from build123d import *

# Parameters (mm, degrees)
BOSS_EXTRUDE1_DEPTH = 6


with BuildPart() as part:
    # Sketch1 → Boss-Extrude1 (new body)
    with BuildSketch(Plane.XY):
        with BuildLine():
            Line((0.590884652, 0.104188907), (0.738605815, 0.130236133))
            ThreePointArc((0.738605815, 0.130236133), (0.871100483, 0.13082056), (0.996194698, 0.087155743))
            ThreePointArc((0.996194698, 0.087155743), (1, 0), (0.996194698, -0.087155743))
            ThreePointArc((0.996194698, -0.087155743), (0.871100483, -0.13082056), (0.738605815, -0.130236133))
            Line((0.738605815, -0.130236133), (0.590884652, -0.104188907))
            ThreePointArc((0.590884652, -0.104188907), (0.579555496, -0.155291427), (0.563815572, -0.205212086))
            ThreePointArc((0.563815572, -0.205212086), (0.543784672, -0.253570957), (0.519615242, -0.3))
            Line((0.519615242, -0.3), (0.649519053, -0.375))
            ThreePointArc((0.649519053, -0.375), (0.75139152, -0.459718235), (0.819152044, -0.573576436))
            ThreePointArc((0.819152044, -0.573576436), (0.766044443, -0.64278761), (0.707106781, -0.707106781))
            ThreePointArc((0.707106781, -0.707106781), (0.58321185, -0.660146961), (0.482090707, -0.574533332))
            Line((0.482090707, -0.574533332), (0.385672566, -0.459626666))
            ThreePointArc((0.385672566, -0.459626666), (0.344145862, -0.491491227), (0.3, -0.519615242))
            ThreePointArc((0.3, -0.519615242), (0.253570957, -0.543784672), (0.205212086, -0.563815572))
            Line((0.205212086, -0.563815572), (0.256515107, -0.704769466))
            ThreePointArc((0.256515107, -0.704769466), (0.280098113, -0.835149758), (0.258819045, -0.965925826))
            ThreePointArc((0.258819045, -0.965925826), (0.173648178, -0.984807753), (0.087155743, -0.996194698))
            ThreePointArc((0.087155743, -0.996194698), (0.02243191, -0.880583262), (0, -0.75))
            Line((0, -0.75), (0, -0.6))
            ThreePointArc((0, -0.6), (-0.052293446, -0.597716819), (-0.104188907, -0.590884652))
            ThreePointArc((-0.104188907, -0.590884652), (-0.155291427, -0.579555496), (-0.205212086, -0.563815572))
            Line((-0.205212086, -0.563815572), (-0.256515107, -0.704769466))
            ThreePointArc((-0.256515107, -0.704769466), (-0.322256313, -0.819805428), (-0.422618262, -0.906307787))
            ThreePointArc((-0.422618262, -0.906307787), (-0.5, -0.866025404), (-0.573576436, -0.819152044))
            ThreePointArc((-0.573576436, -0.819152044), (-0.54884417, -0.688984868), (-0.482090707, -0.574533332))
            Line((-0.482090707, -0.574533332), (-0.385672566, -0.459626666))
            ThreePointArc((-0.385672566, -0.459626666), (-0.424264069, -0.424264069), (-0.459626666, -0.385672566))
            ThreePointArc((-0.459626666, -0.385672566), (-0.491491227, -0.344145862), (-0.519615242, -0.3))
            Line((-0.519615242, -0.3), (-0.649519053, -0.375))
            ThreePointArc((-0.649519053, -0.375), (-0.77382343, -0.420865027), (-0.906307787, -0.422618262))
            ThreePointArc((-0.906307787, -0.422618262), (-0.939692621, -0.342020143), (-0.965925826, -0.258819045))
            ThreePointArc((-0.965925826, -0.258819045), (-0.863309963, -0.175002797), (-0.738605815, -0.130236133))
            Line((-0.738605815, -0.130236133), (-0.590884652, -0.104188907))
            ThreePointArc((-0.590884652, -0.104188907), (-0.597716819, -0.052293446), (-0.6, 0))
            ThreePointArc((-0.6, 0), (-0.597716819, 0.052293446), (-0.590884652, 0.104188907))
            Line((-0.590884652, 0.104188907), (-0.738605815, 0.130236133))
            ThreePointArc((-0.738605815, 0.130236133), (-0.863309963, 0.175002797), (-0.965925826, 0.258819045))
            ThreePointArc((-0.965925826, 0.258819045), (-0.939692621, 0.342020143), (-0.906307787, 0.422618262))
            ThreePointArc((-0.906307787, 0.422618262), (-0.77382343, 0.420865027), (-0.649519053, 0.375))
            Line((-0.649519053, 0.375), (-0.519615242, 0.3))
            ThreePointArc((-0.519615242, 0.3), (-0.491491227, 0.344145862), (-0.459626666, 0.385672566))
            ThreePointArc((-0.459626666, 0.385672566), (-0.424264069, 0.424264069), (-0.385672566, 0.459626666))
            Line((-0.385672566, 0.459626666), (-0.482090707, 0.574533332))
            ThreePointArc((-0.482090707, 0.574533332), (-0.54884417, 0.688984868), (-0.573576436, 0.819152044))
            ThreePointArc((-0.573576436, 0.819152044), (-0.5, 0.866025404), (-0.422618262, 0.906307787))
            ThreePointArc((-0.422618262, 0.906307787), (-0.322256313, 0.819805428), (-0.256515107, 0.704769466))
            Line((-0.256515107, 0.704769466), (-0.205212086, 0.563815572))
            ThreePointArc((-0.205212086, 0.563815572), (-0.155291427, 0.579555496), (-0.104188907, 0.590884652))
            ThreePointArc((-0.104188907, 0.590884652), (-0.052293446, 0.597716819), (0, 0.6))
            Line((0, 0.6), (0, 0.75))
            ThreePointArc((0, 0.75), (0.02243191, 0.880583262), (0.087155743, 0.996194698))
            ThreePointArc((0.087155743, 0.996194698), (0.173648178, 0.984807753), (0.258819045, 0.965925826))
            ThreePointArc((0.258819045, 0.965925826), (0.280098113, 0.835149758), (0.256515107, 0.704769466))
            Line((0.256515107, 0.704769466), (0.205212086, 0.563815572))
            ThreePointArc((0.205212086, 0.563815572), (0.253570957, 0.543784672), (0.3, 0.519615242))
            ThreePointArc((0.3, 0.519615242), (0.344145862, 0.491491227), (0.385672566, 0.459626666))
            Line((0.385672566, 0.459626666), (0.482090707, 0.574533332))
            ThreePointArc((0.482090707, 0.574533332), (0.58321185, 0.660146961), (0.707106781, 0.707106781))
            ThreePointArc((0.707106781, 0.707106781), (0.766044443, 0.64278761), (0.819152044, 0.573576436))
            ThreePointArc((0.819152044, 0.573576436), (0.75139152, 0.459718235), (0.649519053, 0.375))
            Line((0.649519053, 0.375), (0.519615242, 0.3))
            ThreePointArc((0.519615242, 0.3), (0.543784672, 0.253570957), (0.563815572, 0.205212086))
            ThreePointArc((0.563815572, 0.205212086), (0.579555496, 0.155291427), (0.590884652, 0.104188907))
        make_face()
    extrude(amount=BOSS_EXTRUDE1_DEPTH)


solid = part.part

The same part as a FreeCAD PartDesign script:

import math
import FreeCAD as App
import Part
import Sketcher
from FreeCAD import Vector
Q = App.Units.Quantity

doc = App.newDocument("Part")
body = doc.addObject("PartDesign::Body", "Body")

# Sketch on XY plane
sketch1 = body.newObject("Sketcher::SketchObject", "Sketch")
sketch1.AttachmentSupport = (doc.getObject("XY_Plane"), [""])
sketch1.MapMode = "FlatFace"
sketch1.addGeometry(Part.LineSegment(Vector(0.74, 0.13, 0), Vector(0.59, 0.1, 0)), False)
sketch1.addGeometry(Part.ArcOfCircle(Part.Circle(Vector(0, 0, 0), Vector(0, 0, 1), 0.6), math.radians(10), math.radians(20)), False)
sketch1.addGeometry(Part.ArcOfCircle(Part.Circle(Vector(0, 0, 0), Vector(0, 0, 1), 0.6), math.radians(20), math.radians(30)), False)
sketch1.addGeometry(Part.LineSegment(Vector(0.52, 0.3, 0), Vector(0.65, 0.38, 0)), False)
sketch1.addGeometry(Part.ArcOfCircle(Part.Circle(Vector(0.45, 0.71, 0), Vector(0, 0, 1), 0.39), math.radians(-60), math.radians(-21)), False)
sketch1.addGeometry(Part.ArcOfCircle(Part.Circle(Vector(0, 0, 0), Vector(0, 0, 1), 1), math.radians(35), math.radians(45)), False)
sketch1.addGeometry(Part.ArcOfCircle(Part.Circle(Vector(0.78, 0.32, 0), Vector(0, 0, 1), 0.39), math.radians(101), math.radians(140)), False)
sketch1.addGeometry(Part.LineSegment(Vector(0.48, 0.57, 0), Vector(0.39, 0.46, 0)), False)
sketch1.addGeometry(Part.ArcOfCircle(Part.Circle(Vector(0, 0, 0), Vector(0, 0, 1), 0.6), math.radians(50), math.radians(60)), False)
sketch1.addGeometry(Part.ArcOfCircle(Part.Circle(Vector(0, 0, 0), Vector(0, 0, 1), 0.6), math.radians(60), math.radians(70)), False)
sketch1.addGeometry(Part.LineSegment(Vector(0.21, 0.56, 0), Vector(0.26, 0.7, 0)), False)
sketch1.addGeometry(Part.ArcOfCircle(Part.Circle(Vector(-0.11, 0.84, 0), Vector(0, 0, 1), 0.39), math.radians(-20), math.radians(19)), False)
sketch1.addGeometry(Part.ArcOfCircle(Part.Circle(Vector(0, 0, 0), Vector(0, 0, 1), 1), math.radians(75), math.radians(85)), False)
sketch1.addGeometry(Part.ArcOfCircle(Part.Circle(Vector(0.39, 0.75, 0), Vector(0, 0, 1), 0.39), math.radians(141), math.radians(180)), False)
sketch1.addGeometry(Part.LineSegment(Vector(0, 0.75, 0), Vector(0, 0.6, 0)), False)
sketch1.addGeometry(Part.ArcOfCircle(Part.Circle(Vector(0, 0, 0), Vector(0, 0, 1), 0.6), math.radians(90), math.radians(100)), False)
sketch1.addGeometry(Part.ArcOfCircle(Part.Circle(Vector(0, 0, 0), Vector(0, 0, 1), 0.6), math.radians(100), math.radians(110)), False)
sketch1.addGeometry(Part.LineSegment(Vector(-0.21, 0.56, 0), Vector(-0.26, 0.7, 0)), False)
sketch1.addGeometry(Part.ArcOfCircle(Part.Circle(Vector(-0.62, 0.57, 0), Vector(0, 0, 1), 0.39), math.radians(20), math.radians(59)), False)
sketch1.addGeometry(Part.ArcOfCircle(Part.Circle(Vector(0, 0, 0), Vector(0, 0, 1), 1), math.radians(115), math.radians(125)), False)
sketch1.addGeometry(Part.ArcOfCircle(Part.Circle(Vector(-0.18, 0.83, 0), Vector(0, 0, 1), 0.39), math.radians(-179), math.radians(-140)), False)
sketch1.addGeometry(Part.LineSegment(Vector(-0.48, 0.57, 0), Vector(-0.39, 0.46, 0)), False)
sketch1.addGeometry(Part.ArcOfCircle(Part.Circle(Vector(0, 0, 0), Vector(0, 0, 1), 0.6), math.radians(130), math.radians(140)), False)
sketch1.addGeometry(Part.ArcOfCircle(Part.Circle(Vector(0, 0, 0), Vector(0, 0, 1), 0.6), math.radians(140), math.radians(150)), False)
sketch1.addGeometry(Part.LineSegment(Vector(-0.52, 0.3, 0), Vector(-0.65, 0.38, 0)), False)
sketch1.addGeometry(Part.ArcOfCircle(Part.Circle(Vector(-0.85, 0.04, 0), Vector(0, 0, 1), 0.39), math.radians(60), math.radians(99)), False)
sketch1.addGeometry(Part.ArcOfCircle(Part.Circle(Vector(0, 0, 0), Vector(0, 0, 1), 1), math.radians(155), math.radians(165)), False)
sketch1.addGeometry(Part.ArcOfCircle(Part.Circle(Vector(-0.67, 0.52, 0), Vector(0, 0, 1), 0.39), math.radians(-139), math.radians(-100)), False)
sketch1.addGeometry(Part.LineSegment(Vector(-0.74, 0.13, 0), Vector(-0.59, 0.1, 0)), False)
sketch1.addGeometry(Part.ArcOfCircle(Part.Circle(Vector(0, 0, 0), Vector(0, 0, 1), 0.6), math.radians(170), math.radians(180)), False)
sketch1.addGeometry(Part.ArcOfCircle(Part.Circle(Vector(0, 0, 0), Vector(0, 0, 1), 0.6), math.radians(180), math.radians(190)), False)
sketch1.addGeometry(Part.LineSegment(Vector(-0.59, -0.1, 0), Vector(-0.74, -0.13, 0)), False)
sketch1.addGeometry(Part.ArcOfCircle(Part.Circle(Vector(-0.67, -0.52, 0), Vector(0, 0, 1), 0.39), math.radians(100), math.radians(139)), False)
sketch1.addGeometry(Part.ArcOfCircle(Part.Circle(Vector(0, 0, 0), Vector(0, 0, 1), 1), math.radians(-165), math.radians(-155)), False)
sketch1.addGeometry(Part.ArcOfCircle(Part.Circle(Vector(-0.85, -0.04, 0), Vector(0, 0, 1), 0.39), math.radians(-99), math.radians(-60)), False)
sketch1.addGeometry(Part.LineSegment(Vector(-0.65, -0.38, 0), Vector(-0.52, -0.3, 0)), False)
sketch1.addGeometry(Part.ArcOfCircle(Part.Circle(Vector(0, 0, 0), Vector(0, 0, 1), 0.6), math.radians(-150), math.radians(-140)), False)
sketch1.addGeometry(Part.ArcOfCircle(Part.Circle(Vector(0, 0, 0), Vector(0, 0, 1), 0.6), math.radians(-140), math.radians(-130)), False)
sketch1.addGeometry(Part.LineSegment(Vector(-0.39, -0.46, 0), Vector(-0.48, -0.57, 0)), False)
sketch1.addGeometry(Part.ArcOfCircle(Part.Circle(Vector(-0.18, -0.83, 0), Vector(0, 0, 1), 0.39), math.radians(140), math.radians(179)), False)
sketch1.addGeometry(Part.ArcOfCircle(Part.Circle(Vector(0, 0, 0), Vector(0, 0, 1), 1), math.radians(-125), math.radians(-115)), False)
sketch1.addGeometry(Part.ArcOfCircle(Part.Circle(Vector(-0.62, -0.57, 0), Vector(0, 0, 1), 0.39), math.radians(-59), math.radians(-20)), False)
sketch1.addGeometry(Part.LineSegment(Vector(-0.26, -0.7, 0), Vector(-0.21, -0.56, 0)), False)
sketch1.addGeometry(Part.ArcOfCircle(Part.Circle(Vector(0, 0, 0), Vector(0, 0, 1), 0.6), math.radians(-110), math.radians(-100)), False)
sketch1.addGeometry(Part.ArcOfCircle(Part.Circle(Vector(0, 0, 0), Vector(0, 0, 1), 0.6), math.radians(-100), math.radians(-90)), False)
sketch1.addGeometry(Part.LineSegment(Vector(0, -0.6, 0), Vector(0, -0.75, 0)), False)
sketch1.addGeometry(Part.ArcOfCircle(Part.Circle(Vector(0.39, -0.75, 0), Vector(0, 0, 1), 0.39), math.radians(180), math.radians(219)), False)
sketch1.addGeometry(Part.ArcOfCircle(Part.Circle(Vector(0, 0, 0), Vector(0, 0, 1), 1), math.radians(-85), math.radians(-75)), False)
sketch1.addGeometry(Part.ArcOfCircle(Part.Circle(Vector(-0.11, -0.84, 0), Vector(0, 0, 1), 0.39), math.radians(-19), math.radians(20)), False)
sketch1.addGeometry(Part.LineSegment(Vector(0.26, -0.7, 0), Vector(0.21, -0.56, 0)), False)
sketch1.addGeometry(Part.ArcOfCircle(Part.Circle(Vector(0, 0, 0), Vector(0, 0, 1), 0.6), math.radians(-70), math.radians(-60)), False)
sketch1.addGeometry(Part.ArcOfCircle(Part.Circle(Vector(0, 0, 0), Vector(0, 0, 1), 0.6), math.radians(-60), math.radians(-50)), False)
sketch1.addGeometry(Part.LineSegment(Vector(0.39, -0.46, 0), Vector(0.48, -0.57, 0)), False)
sketch1.addGeometry(Part.ArcOfCircle(Part.Circle(Vector(0.78, -0.32, 0), Vector(0, 0, 1), 0.39), math.radians(-140), math.radians(-101)), False)
sketch1.addGeometry(Part.ArcOfCircle(Part.Circle(Vector(0, 0, 0), Vector(0, 0, 1), 1), math.radians(-45), math.radians(-35)), False)
sketch1.addGeometry(Part.ArcOfCircle(Part.Circle(Vector(0.45, -0.71, 0), Vector(0, 0, 1), 0.39), math.radians(21), math.radians(60)), False)
sketch1.addGeometry(Part.LineSegment(Vector(0.65, -0.38, 0), Vector(0.52, -0.3, 0)), False)
sketch1.addGeometry(Part.ArcOfCircle(Part.Circle(Vector(0, 0, 0), Vector(0, 0, 1), 0.6), math.radians(-30), math.radians(-20)), False)
sketch1.addGeometry(Part.ArcOfCircle(Part.Circle(Vector(0, 0, 0), Vector(0, 0, 1), 0.6), math.radians(-20), math.radians(-10)), False)
sketch1.addGeometry(Part.LineSegment(Vector(0.59, -0.1, 0), Vector(0.74, -0.13, 0)), False)
sketch1.addGeometry(Part.ArcOfCircle(Part.Circle(Vector(0.81, 0.26, 0), Vector(0, 0, 1), 0.39), math.radians(-100), math.radians(-61)), False)
sketch1.addGeometry(Part.ArcOfCircle(Part.Circle(Vector(0, 0, 0), Vector(0, 0, 1), 1), math.radians(-5), math.radians(5)), False)
sketch1.addGeometry(Part.ArcOfCircle(Part.Circle(Vector(0.81, -0.26, 0), Vector(0, 0, 1), 0.39), math.radians(61), math.radians(100)), False)
sketch1.addConstraint(Sketcher.Constraint("Coincident", 0, 2, 1, 1))
sketch1.addConstraint(Sketcher.Constraint("Tangent", 1, 2, 2, 1))
sketch1.addConstraint(Sketcher.Constraint("Coincident", 2, 2, 3, 1))
sketch1.addConstraint(Sketcher.Constraint("Tangent", 3, 2, 4, 1))
sketch1.addConstraint(Sketcher.Constraint("Coincident", 4, 2, 5, 1))
sketch1.addConstraint(Sketcher.Constraint("Coincident", 5, 2, 6, 1))
sketch1.addConstraint(Sketcher.Constraint("Tangent", 6, 2, 7, 1))
sketch1.addConstraint(Sketcher.Constraint("Coincident", 7, 2, 8, 1))
sketch1.addConstraint(Sketcher.Constraint("Tangent", 8, 2, 9, 1))
sketch1.addConstraint(Sketcher.Constraint("Coincident", 9, 2, 10, 1))
sketch1.addConstraint(Sketcher.Constraint("Tangent", 10, 2, 11, 1))
sketch1.addConstraint(Sketcher.Constraint("Coincident", 11, 2, 12, 1))
sketch1.addConstraint(Sketcher.Constraint("Coincident", 12, 2, 13, 1))
sketch1.addConstraint(Sketcher.Constraint("Tangent", 13, 2, 14, 1))
sketch1.addConstraint(Sketcher.Constraint("Coincident", 14, 2, 15, 1))
sketch1.addConstraint(Sketcher.Constraint("Tangent", 15, 2, 16, 1))
sketch1.addConstraint(Sketcher.Constraint("Coincident", 16, 2, 17, 1))
sketch1.addConstraint(Sketcher.Constraint("Tangent", 17, 2, 18, 1))
sketch1.addConstraint(Sketcher.Constraint("Coincident", 18, 2, 19, 1))
sketch1.addConstraint(Sketcher.Constraint("Coincident", 19, 2, 20, 1))
sketch1.addConstraint(Sketcher.Constraint("Tangent", 20, 2, 21, 1))
sketch1.addConstraint(Sketcher.Constraint("Coincident", 21, 2, 22, 1))
sketch1.addConstraint(Sketcher.Constraint("Tangent", 22, 2, 23, 1))
sketch1.addConstraint(Sketcher.Constraint("Coincident", 23, 2, 24, 1))
sketch1.addConstraint(Sketcher.Constraint("Tangent", 24, 2, 25, 1))
sketch1.addConstraint(Sketcher.Constraint("Coincident", 25, 2, 26, 1))
sketch1.addConstraint(Sketcher.Constraint("Coincident", 26, 2, 27, 1))
sketch1.addConstraint(Sketcher.Constraint("Tangent", 27, 2, 28, 1))
sketch1.addConstraint(Sketcher.Constraint("Coincident", 28, 2, 29, 1))
sketch1.addConstraint(Sketcher.Constraint("Tangent", 29, 2, 30, 1))
sketch1.addConstraint(Sketcher.Constraint("Coincident", 30, 2, 31, 1))
sketch1.addConstraint(Sketcher.Constraint("Tangent", 31, 2, 32, 1))
sketch1.addConstraint(Sketcher.Constraint("Coincident", 32, 2, 33, 1))
sketch1.addConstraint(Sketcher.Constraint("Coincident", 33, 2, 34, 1))
sketch1.addConstraint(Sketcher.Constraint("Tangent", 34, 2, 35, 1))
sketch1.addConstraint(Sketcher.Constraint("Coincident", 35, 2, 36, 1))
sketch1.addConstraint(Sketcher.Constraint("Tangent", 36, 2, 37, 1))
sketch1.addConstraint(Sketcher.Constraint("Coincident", 37, 2, 38, 1))
sketch1.addConstraint(Sketcher.Constraint("Tangent", 38, 2, 39, 1))
sketch1.addConstraint(Sketcher.Constraint("Coincident", 39, 2, 40, 1))
sketch1.addConstraint(Sketcher.Constraint("Coincident", 40, 2, 41, 1))
sketch1.addConstraint(Sketcher.Constraint("Tangent", 41, 2, 42, 1))
sketch1.addConstraint(Sketcher.Constraint("Coincident", 42, 2, 43, 1))
sketch1.addConstraint(Sketcher.Constraint("Tangent", 43, 2, 44, 1))
sketch1.addConstraint(Sketcher.Constraint("Coincident", 44, 2, 45, 1))
sketch1.addConstraint(Sketcher.Constraint("Tangent", 45, 2, 46, 1))
sketch1.addConstraint(Sketcher.Constraint("Coincident", 46, 2, 47, 1))
sketch1.addConstraint(Sketcher.Constraint("Coincident", 47, 2, 48, 1))
sketch1.addConstraint(Sketcher.Constraint("Tangent", 48, 2, 49, 1))
sketch1.addConstraint(Sketcher.Constraint("Coincident", 49, 2, 50, 1))
sketch1.addConstraint(Sketcher.Constraint("Tangent", 50, 2, 51, 1))
sketch1.addConstraint(Sketcher.Constraint("Coincident", 51, 2, 52, 1))
sketch1.addConstraint(Sketcher.Constraint("Tangent", 52, 2, 53, 1))
sketch1.addConstraint(Sketcher.Constraint("Coincident", 53, 2, 54, 1))
sketch1.addConstraint(Sketcher.Constraint("Coincident", 54, 2, 55, 1))
sketch1.addConstraint(Sketcher.Constraint("Tangent", 55, 2, 56, 1))
sketch1.addConstraint(Sketcher.Constraint("Coincident", 56, 2, 57, 1))
sketch1.addConstraint(Sketcher.Constraint("Tangent", 57, 2, 58, 1))
sketch1.addConstraint(Sketcher.Constraint("Coincident", 58, 2, 59, 1))
sketch1.addConstraint(Sketcher.Constraint("Tangent", 59, 2, 60, 1))
sketch1.addConstraint(Sketcher.Constraint("Coincident", 60, 2, 61, 1))
sketch1.addConstraint(Sketcher.Constraint("Coincident", 61, 2, 62, 1))
sketch1.addConstraint(Sketcher.Constraint("Tangent", 62, 2, 0, 1))
sketch1.addConstraint(Sketcher.Constraint("Vertical", 14))
sketch1.addConstraint(Sketcher.Constraint("Vertical", 45))
sketch1.addConstraint(Sketcher.Constraint("Coincident", 1, 3, -1, 1))
sketch1.addConstraint(Sketcher.Constraint("Coincident", 5, 3, -1, 1))
sketch1.addConstraint(Sketcher.Constraint("Coincident", 8, 3, -1, 1))
sketch1.addConstraint(Sketcher.Constraint("Coincident", 12, 3, -1, 1))
sketch1.addConstraint(Sketcher.Constraint("Coincident", 15, 3, -1, 1))
sketch1.addConstraint(Sketcher.Constraint("Coincident", 19, 3, -1, 1))
sketch1.addConstraint(Sketcher.Constraint("Coincident", 22, 3, -1, 1))
sketch1.addConstraint(Sketcher.Constraint("Coincident", 26, 3, -1, 1))
sketch1.addConstraint(Sketcher.Constraint("Coincident", 29, 3, -1, 1))
sketch1.addConstraint(Sketcher.Constraint("Coincident", 33, 3, -1, 1))
sketch1.addConstraint(Sketcher.Constraint("Coincident", 36, 3, -1, 1))
sketch1.addConstraint(Sketcher.Constraint("Coincident", 40, 3, -1, 1))
sketch1.addConstraint(Sketcher.Constraint("Coincident", 43, 3, -1, 1))
sketch1.addConstraint(Sketcher.Constraint("Coincident", 47, 3, -1, 1))
sketch1.addConstraint(Sketcher.Constraint("Coincident", 50, 3, -1, 1))
sketch1.addConstraint(Sketcher.Constraint("Coincident", 54, 3, -1, 1))
sketch1.addConstraint(Sketcher.Constraint("Coincident", 57, 3, -1, 1))
sketch1.addConstraint(Sketcher.Constraint("Coincident", 61, 3, -1, 1))
sketch1.addConstraint(Sketcher.Constraint("Equal", 1, 2))
sketch1.addConstraint(Sketcher.Constraint("Equal", 4, 6))
sketch1.addConstraint(Sketcher.Constraint("Equal", 2, 8))
sketch1.addConstraint(Sketcher.Constraint("Equal", 8, 9))
sketch1.addConstraint(Sketcher.Constraint("Equal", 6, 11))
sketch1.addConstraint(Sketcher.Constraint("Equal", 5, 12))
sketch1.addConstraint(Sketcher.Constraint("Equal", 11, 13))
sketch1.addConstraint(Sketcher.Constraint("Equal", 9, 15))
sketch1.addConstraint(Sketcher.Constraint("Equal", 15, 16))
sketch1.addConstraint(Sketcher.Constraint("Equal", 13, 18))
sketch1.addConstraint(Sketcher.Constraint("Equal", 12, 19))
sketch1.addConstraint(Sketcher.Constraint("Equal", 18, 20))
sketch1.addConstraint(Sketcher.Constraint("Equal", 16, 22))
sketch1.addConstraint(Sketcher.Constraint("Equal", 22, 23))
sketch1.addConstraint(Sketcher.Constraint("Equal", 20, 25))
sketch1.addConstraint(Sketcher.Constraint("Equal", 19, 26))
sketch1.addConstraint(Sketcher.Constraint("Equal", 25, 27))
sketch1.addConstraint(Sketcher.Constraint("Equal", 23, 29))
sketch1.addConstraint(Sketcher.Constraint("Equal", 29, 30))
sketch1.addConstraint(Sketcher.Constraint("Equal", 27, 32))
sketch1.addConstraint(Sketcher.Constraint("Equal", 26, 33))
sketch1.addConstraint(Sketcher.Constraint("Equal", 32, 34))
sketch1.addConstraint(Sketcher.Constraint("Equal", 30, 36))
sketch1.addConstraint(Sketcher.Constraint("Equal", 36, 37))
sketch1.addConstraint(Sketcher.Constraint("Equal", 34, 39))
sketch1.addConstraint(Sketcher.Constraint("Equal", 33, 40))
sketch1.addConstraint(Sketcher.Constraint("Equal", 39, 41))
sketch1.addConstraint(Sketcher.Constraint("Equal", 37, 43))
sketch1.addConstraint(Sketcher.Constraint("Equal", 43, 44))
sketch1.addConstraint(Sketcher.Constraint("Equal", 41, 46))
sketch1.addConstraint(Sketcher.Constraint("Equal", 40, 47))
sketch1.addConstraint(Sketcher.Constraint("Equal", 46, 48))
sketch1.addConstraint(Sketcher.Constraint("Equal", 44, 50))
sketch1.addConstraint(Sketcher.Constraint("Equal", 50, 51))
sketch1.addConstraint(Sketcher.Constraint("Equal", 48, 53))
sketch1.addConstraint(Sketcher.Constraint("Equal", 47, 54))
sketch1.addConstraint(Sketcher.Constraint("Equal", 53, 55))
sketch1.addConstraint(Sketcher.Constraint("Equal", 51, 57))
sketch1.addConstraint(Sketcher.Constraint("Equal", 57, 58))
sketch1.addConstraint(Sketcher.Constraint("Equal", 55, 60))
sketch1.addConstraint(Sketcher.Constraint("Equal", 54, 61))
sketch1.addConstraint(Sketcher.Constraint("Equal", 60, 62))
sketch1.addConstraint(Sketcher.Constraint("Symmetric", 3, 2, 34, 2, -1, 1))
sketch1.addConstraint(Sketcher.Constraint("Symmetric", 6, 2, 38, 2, -1, 1))
sketch1.addConstraint(Sketcher.Constraint("Symmetric", 10, 2, 41, 2, -1, 1))
sketch1.addConstraint(Sketcher.Constraint("Symmetric", 13, 2, 45, 2, -1, 1))
sketch1.addConstraint(Sketcher.Constraint("Symmetric", 17, 2, 48, 2, -1, 1))
sketch1.addConstraint(Sketcher.Constraint("Symmetric", 20, 2, 52, 2, -1, 1))
sketch1.addConstraint(Sketcher.Constraint("Symmetric", 24, 2, 55, 2, -1, 1))
sketch1.addConstraint(Sketcher.Constraint("Symmetric", 27, 2, 59, 2, -1, 1))
sketch1.addConstraint(Sketcher.Constraint("Symmetric", 31, 2, 62, 2, -1, 1))
sketch1.addConstraint(Sketcher.Constraint("Symmetric", 10, 2, 17, 2, -2))
sketch1.addConstraint(Sketcher.Constraint("Symmetric", 6, 2, 20, 2, -2))
sketch1.addConstraint(Sketcher.Constraint("Symmetric", 3, 2, 24, 2, -2))
sketch1.addConstraint(Sketcher.Constraint("Symmetric", 31, 2, 59, 2, -2))
sketch1.addConstraint(Sketcher.Constraint("PointOnObject", 13, 2, -2))
sketch1.addConstraint(Sketcher.Constraint("PointOnObject", 29, 2, -1))
sketch1.addConstraint(Sketcher.Constraint("Parallel", 0, 31))
sketch1.addConstraint(Sketcher.Constraint("Parallel", 3, 35))
sketch1.addConstraint(Sketcher.Constraint("Parallel", 7, 38))
sketch1.addConstraint(Sketcher.Constraint("Parallel", 10, 42))
sketch1.addConstraint(Sketcher.Constraint("Parallel", 17, 49))
sketch1.addConstraint(Sketcher.Constraint("Parallel", 21, 52))
sketch1.addConstraint(Sketcher.Constraint("Parallel", 24, 56))
sketch1.addConstraint(Sketcher.Constraint("Parallel", 28, 59))
sketch1.addConstraint(Sketcher.Constraint("Horizontal", 9, 2, 16, 2))
sketch1.addConstraint(Sketcher.Constraint("Horizontal", 7, 2, 21, 2))
sketch1.addConstraint(Sketcher.Constraint("Horizontal", 2, 2, 23, 2))
sketch1.addConstraint(Sketcher.Constraint("Horizontal", 0, 2, 28, 2))
sketch1.addConstraint(Sketcher.Constraint("Vertical", 22, 2, 36, 2))
sketch1.addConstraint(Sketcher.Constraint("Vertical", 15, 2, 43, 2))
sketch1.addConstraint(Sketcher.Constraint("Vertical", 8, 2, 50, 2))
sketch1.addConstraint(Sketcher.Constraint("Vertical", 1, 2, 57, 2))
sketch1.addConstraint(Sketcher.Constraint("Equal", 0, 3))
sketch1.addConstraint(Sketcher.Constraint("Equal", 3, 7))
sketch1.addConstraint(Sketcher.Constraint("Equal", 7, 10))
sketch1.addConstraint(Sketcher.Constraint("Radius", 5, 1.0))
sketch1.addConstraint(Sketcher.Constraint("Radius", 1, 0.6))
sketch1.addConstraint(Sketcher.Constraint("Angle", 0, Q("-170 deg")))
sketch1.addConstraint(Sketcher.Constraint("Angle", 3, Q("30 deg")))
sketch1.addConstraint(Sketcher.Constraint("Angle", 7, Q("-130 deg")))
sketch1.addConstraint(Sketcher.Constraint("Angle", 10, Q("70 deg")))
sketch1.addConstraint(Sketcher.Constraint("DistanceY", 14, 2, 14, 1, 0.15))
sketch1.addConstraint(Sketcher.Constraint("DistanceY", -1, 1, 2, 2, 0.3))
sketch1.addConstraint(Sketcher.Constraint("DistanceX", -1, 1, 8, 2, 0.3))
sketch1.addConstraint(Sketcher.Constraint("Radius", 4, 0.391299))
sketch1.addConstraint(Sketcher.Constraint("Distance", 0, 0.15))
sketch1.addConstraint(Sketcher.Constraint("DistanceY", -1, 1, 11, 3, 0.838602))
sketch1.addConstraint(Sketcher.Constraint("DistanceY", -1, 1, 6, 3, 0.323011))
sketch1.addConstraint(Sketcher.Constraint("DistanceY", -1, 1, 27, 3, 0.515591))
sketch1.addConstraint(Sketcher.Constraint("DistanceX", 15, 2, -1, 1, 0.104189))
sketch1.addConstraint(Sketcher.Constraint("DistanceX", -1, 1, 1, 2, 0.563816))
sketch1.addConstraint(Sketcher.Constraint("DistanceX", 22, 2, -1, 1, 0.459627))
pad1 = body.newObject("PartDesign::Pad", "Pad")
pad1.Profile = sketch1
pad1.Length = 6

doc.recompute()
